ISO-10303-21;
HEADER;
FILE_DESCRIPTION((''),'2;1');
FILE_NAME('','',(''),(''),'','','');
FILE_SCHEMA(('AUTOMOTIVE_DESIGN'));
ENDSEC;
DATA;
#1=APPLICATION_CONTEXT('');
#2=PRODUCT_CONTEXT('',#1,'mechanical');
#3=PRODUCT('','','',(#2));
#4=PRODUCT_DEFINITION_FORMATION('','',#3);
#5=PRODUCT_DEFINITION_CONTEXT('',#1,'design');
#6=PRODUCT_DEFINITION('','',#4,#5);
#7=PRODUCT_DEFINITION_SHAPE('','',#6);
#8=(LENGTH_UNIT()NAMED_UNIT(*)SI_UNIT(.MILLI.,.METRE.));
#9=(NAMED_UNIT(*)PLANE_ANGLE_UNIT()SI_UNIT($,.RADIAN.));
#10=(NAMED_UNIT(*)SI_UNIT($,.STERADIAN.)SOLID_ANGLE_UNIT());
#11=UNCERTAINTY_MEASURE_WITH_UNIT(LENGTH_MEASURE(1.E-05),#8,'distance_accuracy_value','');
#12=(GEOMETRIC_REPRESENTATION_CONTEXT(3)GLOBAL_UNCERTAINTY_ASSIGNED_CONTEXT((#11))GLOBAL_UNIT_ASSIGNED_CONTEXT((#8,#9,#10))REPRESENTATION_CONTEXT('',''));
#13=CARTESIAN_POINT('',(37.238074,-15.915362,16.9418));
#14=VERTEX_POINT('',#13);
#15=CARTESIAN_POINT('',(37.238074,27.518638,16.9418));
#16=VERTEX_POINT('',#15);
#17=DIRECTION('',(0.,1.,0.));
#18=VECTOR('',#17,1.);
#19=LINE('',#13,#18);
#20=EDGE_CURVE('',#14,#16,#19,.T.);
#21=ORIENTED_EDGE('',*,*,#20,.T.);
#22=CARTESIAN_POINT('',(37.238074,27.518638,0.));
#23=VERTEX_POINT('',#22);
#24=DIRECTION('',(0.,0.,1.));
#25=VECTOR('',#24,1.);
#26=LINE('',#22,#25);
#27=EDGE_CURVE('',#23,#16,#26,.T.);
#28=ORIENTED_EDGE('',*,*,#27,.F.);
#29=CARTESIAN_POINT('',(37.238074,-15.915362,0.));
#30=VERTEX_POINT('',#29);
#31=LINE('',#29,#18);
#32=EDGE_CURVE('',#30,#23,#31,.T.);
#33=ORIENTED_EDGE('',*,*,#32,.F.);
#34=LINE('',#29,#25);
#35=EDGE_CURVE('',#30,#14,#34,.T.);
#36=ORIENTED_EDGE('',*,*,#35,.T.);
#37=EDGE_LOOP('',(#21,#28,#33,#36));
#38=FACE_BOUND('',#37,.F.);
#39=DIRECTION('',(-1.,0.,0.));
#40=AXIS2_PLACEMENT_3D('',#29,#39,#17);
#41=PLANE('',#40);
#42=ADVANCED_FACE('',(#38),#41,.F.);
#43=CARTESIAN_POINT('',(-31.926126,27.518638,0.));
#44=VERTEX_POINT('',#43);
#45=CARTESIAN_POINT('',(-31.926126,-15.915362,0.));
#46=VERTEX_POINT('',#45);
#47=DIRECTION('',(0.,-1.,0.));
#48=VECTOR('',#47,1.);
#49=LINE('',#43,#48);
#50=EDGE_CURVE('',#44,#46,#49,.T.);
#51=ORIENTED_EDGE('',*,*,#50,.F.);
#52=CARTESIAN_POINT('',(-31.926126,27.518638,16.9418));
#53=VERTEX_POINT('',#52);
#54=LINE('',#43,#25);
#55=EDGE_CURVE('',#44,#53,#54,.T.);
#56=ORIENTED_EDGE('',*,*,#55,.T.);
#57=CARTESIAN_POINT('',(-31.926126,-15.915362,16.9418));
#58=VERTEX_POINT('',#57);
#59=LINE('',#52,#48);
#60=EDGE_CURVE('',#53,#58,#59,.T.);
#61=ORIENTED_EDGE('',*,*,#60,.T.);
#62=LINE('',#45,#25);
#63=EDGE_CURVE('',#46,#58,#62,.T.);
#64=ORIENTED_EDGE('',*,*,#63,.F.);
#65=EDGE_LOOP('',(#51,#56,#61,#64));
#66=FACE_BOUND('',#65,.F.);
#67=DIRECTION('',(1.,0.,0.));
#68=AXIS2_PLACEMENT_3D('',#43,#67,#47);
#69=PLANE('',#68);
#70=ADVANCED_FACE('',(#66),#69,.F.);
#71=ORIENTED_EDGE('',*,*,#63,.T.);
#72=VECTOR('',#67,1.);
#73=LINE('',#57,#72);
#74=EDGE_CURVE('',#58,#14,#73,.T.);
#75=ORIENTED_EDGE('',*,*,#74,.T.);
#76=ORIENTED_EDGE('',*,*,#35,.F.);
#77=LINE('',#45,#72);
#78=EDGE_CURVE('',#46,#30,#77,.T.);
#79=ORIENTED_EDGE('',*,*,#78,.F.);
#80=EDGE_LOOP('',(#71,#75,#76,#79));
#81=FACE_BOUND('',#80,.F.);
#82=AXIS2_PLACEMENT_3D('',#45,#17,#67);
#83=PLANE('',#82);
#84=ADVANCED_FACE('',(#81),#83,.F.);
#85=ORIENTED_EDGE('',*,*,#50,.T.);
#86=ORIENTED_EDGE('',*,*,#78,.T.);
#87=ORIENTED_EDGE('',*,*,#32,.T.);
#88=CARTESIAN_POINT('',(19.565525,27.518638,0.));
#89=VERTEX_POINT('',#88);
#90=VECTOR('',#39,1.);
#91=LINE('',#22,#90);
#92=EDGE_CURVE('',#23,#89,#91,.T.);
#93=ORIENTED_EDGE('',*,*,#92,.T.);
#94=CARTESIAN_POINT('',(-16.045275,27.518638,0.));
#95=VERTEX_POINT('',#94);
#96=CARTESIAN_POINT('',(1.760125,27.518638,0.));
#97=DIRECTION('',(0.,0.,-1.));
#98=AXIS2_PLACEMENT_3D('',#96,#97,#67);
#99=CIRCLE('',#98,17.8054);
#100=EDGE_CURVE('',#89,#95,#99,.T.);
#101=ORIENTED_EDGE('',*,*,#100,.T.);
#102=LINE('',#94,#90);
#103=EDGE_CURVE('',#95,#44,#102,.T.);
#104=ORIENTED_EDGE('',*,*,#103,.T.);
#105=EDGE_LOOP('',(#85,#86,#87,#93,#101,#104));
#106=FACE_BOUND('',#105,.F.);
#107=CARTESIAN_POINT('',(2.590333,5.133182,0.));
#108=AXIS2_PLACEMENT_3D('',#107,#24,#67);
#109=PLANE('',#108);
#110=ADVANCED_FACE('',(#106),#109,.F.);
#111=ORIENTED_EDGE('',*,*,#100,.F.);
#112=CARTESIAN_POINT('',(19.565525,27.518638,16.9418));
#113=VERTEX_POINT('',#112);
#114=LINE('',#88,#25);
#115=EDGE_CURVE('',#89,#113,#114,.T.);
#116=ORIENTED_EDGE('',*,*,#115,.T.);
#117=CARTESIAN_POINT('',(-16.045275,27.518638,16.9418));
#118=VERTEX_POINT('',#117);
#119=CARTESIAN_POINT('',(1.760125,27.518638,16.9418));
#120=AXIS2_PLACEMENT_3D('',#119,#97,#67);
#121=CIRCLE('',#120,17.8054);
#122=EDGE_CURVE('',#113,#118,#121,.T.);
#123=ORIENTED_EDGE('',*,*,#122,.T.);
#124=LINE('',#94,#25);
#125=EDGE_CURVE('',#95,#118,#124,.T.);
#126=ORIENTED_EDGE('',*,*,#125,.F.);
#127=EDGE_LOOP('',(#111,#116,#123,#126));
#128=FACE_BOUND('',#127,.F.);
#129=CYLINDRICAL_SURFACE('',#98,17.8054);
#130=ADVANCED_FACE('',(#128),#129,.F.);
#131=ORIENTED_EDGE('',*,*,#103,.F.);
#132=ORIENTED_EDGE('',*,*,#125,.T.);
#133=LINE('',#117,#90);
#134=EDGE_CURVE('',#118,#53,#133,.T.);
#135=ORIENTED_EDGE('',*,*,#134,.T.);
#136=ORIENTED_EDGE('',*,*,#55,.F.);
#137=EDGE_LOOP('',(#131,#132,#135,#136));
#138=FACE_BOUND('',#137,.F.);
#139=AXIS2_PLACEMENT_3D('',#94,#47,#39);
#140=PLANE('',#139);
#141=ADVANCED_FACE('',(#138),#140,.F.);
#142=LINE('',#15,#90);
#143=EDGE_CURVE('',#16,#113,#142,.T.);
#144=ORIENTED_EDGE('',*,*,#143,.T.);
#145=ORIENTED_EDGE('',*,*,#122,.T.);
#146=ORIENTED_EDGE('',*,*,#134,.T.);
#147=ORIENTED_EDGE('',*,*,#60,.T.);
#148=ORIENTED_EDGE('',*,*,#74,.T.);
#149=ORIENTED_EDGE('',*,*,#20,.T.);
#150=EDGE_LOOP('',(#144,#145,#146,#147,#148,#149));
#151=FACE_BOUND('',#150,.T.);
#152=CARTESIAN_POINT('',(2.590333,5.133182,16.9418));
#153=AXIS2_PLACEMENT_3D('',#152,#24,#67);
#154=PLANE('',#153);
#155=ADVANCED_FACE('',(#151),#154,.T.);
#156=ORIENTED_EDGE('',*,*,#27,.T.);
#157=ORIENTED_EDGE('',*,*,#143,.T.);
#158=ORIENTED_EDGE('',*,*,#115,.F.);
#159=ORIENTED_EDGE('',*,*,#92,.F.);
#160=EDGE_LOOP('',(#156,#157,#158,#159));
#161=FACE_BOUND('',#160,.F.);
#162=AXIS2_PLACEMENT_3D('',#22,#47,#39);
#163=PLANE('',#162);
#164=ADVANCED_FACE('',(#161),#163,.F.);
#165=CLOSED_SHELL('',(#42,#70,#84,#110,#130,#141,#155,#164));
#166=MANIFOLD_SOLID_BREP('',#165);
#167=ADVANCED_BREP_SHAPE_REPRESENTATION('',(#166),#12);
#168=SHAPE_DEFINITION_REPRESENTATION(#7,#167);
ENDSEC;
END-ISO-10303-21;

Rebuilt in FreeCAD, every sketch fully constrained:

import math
import FreeCAD as App
import Part
import Sketcher
Q = App.Units.Quantity

doc = App.newDocument("Part")
body = doc.addObject("PartDesign::Body", "Body")

# Sketch on XY plane
sketch1 = doc.addObject("Sketcher::SketchObject", "Sketch")
body.addObject(sketch1)
sketch1.AttachmentSupport = (doc.XY_Plane, [""])
sketch1.MapMode = "FlatFace"
sketch1.addGeometry([
    Part.LineSegment(App.Vector(37, 28, 0), App.Vector(20, 28, 0)),  # 0
    Part.ArcOfCircle(Part.Circle(App.Vector(2, 28, 0), App.Vector(0, 0, 1), 18), math.radians(180), math.radians(360)),  # 1
    Part.LineSegment(App.Vector(-16, 28, 0), App.Vector(-32, 28, 0)),  # 2
    Part.LineSegment(App.Vector(-32, 28, 0), App.Vector(-32, -16, 0)),  # 3
    Part.LineSegment(App.Vector(-32, -16, 0), App.Vector(37, -16, 0)),  # 4
    Part.LineSegment(App.Vector(37, -16, 0), App.Vector(37, 28, 0)),  # 5
], False)
sketch1.addConstraint([
    Sketcher.Constraint("Coincident", 0, 2, 1, 2),
    Sketcher.Constraint("Coincident", 1, 1, 2, 1),
    Sketcher.Constraint("Coincident", 2, 2, 3, 1),
    Sketcher.Constraint("Coincident", 3, 2, 4, 1),
    Sketcher.Constraint("Coincident", 4, 2, 5, 1),
    Sketcher.Constraint("Coincident", 5, 2, 0, 1),
    Sketcher.Constraint("Horizontal", 0),
    Sketcher.Constraint("Horizontal", 2),
    Sketcher.Constraint("Vertical", 3),
    Sketcher.Constraint("Horizontal", 4),
    Sketcher.Constraint("Vertical", 5),
    Sketcher.Constraint("Horizontal", 1, 3, 0, 2),
    Sketcher.Constraint("Horizontal", 0, 2, 1, 1),
    Sketcher.Constraint("Radius", 1, Q("0.701 in")),
    Sketcher.Constraint("DistanceY", 3, 2, 3, 1, Q("1.71 in")),
    Sketcher.Constraint("DistanceX", 4, 1, 4, 2, Q("2.723 in")),
    Sketcher.Constraint("DistanceX", 0, 2, 0, 1, 17.672549),
    Sketcher.Constraint("DistanceY", -1, 1, 1, 1, 27.518638),
    Sketcher.Constraint("DistanceX", -1, 1, 1, 3, 1.760125),
])
pad1 = doc.addObject("PartDesign::Pad", "Pad")
body.addObject(pad1)
pad1.Profile = sketch1
pad1.Length = Q("0.667 in")

doc.recompute()
